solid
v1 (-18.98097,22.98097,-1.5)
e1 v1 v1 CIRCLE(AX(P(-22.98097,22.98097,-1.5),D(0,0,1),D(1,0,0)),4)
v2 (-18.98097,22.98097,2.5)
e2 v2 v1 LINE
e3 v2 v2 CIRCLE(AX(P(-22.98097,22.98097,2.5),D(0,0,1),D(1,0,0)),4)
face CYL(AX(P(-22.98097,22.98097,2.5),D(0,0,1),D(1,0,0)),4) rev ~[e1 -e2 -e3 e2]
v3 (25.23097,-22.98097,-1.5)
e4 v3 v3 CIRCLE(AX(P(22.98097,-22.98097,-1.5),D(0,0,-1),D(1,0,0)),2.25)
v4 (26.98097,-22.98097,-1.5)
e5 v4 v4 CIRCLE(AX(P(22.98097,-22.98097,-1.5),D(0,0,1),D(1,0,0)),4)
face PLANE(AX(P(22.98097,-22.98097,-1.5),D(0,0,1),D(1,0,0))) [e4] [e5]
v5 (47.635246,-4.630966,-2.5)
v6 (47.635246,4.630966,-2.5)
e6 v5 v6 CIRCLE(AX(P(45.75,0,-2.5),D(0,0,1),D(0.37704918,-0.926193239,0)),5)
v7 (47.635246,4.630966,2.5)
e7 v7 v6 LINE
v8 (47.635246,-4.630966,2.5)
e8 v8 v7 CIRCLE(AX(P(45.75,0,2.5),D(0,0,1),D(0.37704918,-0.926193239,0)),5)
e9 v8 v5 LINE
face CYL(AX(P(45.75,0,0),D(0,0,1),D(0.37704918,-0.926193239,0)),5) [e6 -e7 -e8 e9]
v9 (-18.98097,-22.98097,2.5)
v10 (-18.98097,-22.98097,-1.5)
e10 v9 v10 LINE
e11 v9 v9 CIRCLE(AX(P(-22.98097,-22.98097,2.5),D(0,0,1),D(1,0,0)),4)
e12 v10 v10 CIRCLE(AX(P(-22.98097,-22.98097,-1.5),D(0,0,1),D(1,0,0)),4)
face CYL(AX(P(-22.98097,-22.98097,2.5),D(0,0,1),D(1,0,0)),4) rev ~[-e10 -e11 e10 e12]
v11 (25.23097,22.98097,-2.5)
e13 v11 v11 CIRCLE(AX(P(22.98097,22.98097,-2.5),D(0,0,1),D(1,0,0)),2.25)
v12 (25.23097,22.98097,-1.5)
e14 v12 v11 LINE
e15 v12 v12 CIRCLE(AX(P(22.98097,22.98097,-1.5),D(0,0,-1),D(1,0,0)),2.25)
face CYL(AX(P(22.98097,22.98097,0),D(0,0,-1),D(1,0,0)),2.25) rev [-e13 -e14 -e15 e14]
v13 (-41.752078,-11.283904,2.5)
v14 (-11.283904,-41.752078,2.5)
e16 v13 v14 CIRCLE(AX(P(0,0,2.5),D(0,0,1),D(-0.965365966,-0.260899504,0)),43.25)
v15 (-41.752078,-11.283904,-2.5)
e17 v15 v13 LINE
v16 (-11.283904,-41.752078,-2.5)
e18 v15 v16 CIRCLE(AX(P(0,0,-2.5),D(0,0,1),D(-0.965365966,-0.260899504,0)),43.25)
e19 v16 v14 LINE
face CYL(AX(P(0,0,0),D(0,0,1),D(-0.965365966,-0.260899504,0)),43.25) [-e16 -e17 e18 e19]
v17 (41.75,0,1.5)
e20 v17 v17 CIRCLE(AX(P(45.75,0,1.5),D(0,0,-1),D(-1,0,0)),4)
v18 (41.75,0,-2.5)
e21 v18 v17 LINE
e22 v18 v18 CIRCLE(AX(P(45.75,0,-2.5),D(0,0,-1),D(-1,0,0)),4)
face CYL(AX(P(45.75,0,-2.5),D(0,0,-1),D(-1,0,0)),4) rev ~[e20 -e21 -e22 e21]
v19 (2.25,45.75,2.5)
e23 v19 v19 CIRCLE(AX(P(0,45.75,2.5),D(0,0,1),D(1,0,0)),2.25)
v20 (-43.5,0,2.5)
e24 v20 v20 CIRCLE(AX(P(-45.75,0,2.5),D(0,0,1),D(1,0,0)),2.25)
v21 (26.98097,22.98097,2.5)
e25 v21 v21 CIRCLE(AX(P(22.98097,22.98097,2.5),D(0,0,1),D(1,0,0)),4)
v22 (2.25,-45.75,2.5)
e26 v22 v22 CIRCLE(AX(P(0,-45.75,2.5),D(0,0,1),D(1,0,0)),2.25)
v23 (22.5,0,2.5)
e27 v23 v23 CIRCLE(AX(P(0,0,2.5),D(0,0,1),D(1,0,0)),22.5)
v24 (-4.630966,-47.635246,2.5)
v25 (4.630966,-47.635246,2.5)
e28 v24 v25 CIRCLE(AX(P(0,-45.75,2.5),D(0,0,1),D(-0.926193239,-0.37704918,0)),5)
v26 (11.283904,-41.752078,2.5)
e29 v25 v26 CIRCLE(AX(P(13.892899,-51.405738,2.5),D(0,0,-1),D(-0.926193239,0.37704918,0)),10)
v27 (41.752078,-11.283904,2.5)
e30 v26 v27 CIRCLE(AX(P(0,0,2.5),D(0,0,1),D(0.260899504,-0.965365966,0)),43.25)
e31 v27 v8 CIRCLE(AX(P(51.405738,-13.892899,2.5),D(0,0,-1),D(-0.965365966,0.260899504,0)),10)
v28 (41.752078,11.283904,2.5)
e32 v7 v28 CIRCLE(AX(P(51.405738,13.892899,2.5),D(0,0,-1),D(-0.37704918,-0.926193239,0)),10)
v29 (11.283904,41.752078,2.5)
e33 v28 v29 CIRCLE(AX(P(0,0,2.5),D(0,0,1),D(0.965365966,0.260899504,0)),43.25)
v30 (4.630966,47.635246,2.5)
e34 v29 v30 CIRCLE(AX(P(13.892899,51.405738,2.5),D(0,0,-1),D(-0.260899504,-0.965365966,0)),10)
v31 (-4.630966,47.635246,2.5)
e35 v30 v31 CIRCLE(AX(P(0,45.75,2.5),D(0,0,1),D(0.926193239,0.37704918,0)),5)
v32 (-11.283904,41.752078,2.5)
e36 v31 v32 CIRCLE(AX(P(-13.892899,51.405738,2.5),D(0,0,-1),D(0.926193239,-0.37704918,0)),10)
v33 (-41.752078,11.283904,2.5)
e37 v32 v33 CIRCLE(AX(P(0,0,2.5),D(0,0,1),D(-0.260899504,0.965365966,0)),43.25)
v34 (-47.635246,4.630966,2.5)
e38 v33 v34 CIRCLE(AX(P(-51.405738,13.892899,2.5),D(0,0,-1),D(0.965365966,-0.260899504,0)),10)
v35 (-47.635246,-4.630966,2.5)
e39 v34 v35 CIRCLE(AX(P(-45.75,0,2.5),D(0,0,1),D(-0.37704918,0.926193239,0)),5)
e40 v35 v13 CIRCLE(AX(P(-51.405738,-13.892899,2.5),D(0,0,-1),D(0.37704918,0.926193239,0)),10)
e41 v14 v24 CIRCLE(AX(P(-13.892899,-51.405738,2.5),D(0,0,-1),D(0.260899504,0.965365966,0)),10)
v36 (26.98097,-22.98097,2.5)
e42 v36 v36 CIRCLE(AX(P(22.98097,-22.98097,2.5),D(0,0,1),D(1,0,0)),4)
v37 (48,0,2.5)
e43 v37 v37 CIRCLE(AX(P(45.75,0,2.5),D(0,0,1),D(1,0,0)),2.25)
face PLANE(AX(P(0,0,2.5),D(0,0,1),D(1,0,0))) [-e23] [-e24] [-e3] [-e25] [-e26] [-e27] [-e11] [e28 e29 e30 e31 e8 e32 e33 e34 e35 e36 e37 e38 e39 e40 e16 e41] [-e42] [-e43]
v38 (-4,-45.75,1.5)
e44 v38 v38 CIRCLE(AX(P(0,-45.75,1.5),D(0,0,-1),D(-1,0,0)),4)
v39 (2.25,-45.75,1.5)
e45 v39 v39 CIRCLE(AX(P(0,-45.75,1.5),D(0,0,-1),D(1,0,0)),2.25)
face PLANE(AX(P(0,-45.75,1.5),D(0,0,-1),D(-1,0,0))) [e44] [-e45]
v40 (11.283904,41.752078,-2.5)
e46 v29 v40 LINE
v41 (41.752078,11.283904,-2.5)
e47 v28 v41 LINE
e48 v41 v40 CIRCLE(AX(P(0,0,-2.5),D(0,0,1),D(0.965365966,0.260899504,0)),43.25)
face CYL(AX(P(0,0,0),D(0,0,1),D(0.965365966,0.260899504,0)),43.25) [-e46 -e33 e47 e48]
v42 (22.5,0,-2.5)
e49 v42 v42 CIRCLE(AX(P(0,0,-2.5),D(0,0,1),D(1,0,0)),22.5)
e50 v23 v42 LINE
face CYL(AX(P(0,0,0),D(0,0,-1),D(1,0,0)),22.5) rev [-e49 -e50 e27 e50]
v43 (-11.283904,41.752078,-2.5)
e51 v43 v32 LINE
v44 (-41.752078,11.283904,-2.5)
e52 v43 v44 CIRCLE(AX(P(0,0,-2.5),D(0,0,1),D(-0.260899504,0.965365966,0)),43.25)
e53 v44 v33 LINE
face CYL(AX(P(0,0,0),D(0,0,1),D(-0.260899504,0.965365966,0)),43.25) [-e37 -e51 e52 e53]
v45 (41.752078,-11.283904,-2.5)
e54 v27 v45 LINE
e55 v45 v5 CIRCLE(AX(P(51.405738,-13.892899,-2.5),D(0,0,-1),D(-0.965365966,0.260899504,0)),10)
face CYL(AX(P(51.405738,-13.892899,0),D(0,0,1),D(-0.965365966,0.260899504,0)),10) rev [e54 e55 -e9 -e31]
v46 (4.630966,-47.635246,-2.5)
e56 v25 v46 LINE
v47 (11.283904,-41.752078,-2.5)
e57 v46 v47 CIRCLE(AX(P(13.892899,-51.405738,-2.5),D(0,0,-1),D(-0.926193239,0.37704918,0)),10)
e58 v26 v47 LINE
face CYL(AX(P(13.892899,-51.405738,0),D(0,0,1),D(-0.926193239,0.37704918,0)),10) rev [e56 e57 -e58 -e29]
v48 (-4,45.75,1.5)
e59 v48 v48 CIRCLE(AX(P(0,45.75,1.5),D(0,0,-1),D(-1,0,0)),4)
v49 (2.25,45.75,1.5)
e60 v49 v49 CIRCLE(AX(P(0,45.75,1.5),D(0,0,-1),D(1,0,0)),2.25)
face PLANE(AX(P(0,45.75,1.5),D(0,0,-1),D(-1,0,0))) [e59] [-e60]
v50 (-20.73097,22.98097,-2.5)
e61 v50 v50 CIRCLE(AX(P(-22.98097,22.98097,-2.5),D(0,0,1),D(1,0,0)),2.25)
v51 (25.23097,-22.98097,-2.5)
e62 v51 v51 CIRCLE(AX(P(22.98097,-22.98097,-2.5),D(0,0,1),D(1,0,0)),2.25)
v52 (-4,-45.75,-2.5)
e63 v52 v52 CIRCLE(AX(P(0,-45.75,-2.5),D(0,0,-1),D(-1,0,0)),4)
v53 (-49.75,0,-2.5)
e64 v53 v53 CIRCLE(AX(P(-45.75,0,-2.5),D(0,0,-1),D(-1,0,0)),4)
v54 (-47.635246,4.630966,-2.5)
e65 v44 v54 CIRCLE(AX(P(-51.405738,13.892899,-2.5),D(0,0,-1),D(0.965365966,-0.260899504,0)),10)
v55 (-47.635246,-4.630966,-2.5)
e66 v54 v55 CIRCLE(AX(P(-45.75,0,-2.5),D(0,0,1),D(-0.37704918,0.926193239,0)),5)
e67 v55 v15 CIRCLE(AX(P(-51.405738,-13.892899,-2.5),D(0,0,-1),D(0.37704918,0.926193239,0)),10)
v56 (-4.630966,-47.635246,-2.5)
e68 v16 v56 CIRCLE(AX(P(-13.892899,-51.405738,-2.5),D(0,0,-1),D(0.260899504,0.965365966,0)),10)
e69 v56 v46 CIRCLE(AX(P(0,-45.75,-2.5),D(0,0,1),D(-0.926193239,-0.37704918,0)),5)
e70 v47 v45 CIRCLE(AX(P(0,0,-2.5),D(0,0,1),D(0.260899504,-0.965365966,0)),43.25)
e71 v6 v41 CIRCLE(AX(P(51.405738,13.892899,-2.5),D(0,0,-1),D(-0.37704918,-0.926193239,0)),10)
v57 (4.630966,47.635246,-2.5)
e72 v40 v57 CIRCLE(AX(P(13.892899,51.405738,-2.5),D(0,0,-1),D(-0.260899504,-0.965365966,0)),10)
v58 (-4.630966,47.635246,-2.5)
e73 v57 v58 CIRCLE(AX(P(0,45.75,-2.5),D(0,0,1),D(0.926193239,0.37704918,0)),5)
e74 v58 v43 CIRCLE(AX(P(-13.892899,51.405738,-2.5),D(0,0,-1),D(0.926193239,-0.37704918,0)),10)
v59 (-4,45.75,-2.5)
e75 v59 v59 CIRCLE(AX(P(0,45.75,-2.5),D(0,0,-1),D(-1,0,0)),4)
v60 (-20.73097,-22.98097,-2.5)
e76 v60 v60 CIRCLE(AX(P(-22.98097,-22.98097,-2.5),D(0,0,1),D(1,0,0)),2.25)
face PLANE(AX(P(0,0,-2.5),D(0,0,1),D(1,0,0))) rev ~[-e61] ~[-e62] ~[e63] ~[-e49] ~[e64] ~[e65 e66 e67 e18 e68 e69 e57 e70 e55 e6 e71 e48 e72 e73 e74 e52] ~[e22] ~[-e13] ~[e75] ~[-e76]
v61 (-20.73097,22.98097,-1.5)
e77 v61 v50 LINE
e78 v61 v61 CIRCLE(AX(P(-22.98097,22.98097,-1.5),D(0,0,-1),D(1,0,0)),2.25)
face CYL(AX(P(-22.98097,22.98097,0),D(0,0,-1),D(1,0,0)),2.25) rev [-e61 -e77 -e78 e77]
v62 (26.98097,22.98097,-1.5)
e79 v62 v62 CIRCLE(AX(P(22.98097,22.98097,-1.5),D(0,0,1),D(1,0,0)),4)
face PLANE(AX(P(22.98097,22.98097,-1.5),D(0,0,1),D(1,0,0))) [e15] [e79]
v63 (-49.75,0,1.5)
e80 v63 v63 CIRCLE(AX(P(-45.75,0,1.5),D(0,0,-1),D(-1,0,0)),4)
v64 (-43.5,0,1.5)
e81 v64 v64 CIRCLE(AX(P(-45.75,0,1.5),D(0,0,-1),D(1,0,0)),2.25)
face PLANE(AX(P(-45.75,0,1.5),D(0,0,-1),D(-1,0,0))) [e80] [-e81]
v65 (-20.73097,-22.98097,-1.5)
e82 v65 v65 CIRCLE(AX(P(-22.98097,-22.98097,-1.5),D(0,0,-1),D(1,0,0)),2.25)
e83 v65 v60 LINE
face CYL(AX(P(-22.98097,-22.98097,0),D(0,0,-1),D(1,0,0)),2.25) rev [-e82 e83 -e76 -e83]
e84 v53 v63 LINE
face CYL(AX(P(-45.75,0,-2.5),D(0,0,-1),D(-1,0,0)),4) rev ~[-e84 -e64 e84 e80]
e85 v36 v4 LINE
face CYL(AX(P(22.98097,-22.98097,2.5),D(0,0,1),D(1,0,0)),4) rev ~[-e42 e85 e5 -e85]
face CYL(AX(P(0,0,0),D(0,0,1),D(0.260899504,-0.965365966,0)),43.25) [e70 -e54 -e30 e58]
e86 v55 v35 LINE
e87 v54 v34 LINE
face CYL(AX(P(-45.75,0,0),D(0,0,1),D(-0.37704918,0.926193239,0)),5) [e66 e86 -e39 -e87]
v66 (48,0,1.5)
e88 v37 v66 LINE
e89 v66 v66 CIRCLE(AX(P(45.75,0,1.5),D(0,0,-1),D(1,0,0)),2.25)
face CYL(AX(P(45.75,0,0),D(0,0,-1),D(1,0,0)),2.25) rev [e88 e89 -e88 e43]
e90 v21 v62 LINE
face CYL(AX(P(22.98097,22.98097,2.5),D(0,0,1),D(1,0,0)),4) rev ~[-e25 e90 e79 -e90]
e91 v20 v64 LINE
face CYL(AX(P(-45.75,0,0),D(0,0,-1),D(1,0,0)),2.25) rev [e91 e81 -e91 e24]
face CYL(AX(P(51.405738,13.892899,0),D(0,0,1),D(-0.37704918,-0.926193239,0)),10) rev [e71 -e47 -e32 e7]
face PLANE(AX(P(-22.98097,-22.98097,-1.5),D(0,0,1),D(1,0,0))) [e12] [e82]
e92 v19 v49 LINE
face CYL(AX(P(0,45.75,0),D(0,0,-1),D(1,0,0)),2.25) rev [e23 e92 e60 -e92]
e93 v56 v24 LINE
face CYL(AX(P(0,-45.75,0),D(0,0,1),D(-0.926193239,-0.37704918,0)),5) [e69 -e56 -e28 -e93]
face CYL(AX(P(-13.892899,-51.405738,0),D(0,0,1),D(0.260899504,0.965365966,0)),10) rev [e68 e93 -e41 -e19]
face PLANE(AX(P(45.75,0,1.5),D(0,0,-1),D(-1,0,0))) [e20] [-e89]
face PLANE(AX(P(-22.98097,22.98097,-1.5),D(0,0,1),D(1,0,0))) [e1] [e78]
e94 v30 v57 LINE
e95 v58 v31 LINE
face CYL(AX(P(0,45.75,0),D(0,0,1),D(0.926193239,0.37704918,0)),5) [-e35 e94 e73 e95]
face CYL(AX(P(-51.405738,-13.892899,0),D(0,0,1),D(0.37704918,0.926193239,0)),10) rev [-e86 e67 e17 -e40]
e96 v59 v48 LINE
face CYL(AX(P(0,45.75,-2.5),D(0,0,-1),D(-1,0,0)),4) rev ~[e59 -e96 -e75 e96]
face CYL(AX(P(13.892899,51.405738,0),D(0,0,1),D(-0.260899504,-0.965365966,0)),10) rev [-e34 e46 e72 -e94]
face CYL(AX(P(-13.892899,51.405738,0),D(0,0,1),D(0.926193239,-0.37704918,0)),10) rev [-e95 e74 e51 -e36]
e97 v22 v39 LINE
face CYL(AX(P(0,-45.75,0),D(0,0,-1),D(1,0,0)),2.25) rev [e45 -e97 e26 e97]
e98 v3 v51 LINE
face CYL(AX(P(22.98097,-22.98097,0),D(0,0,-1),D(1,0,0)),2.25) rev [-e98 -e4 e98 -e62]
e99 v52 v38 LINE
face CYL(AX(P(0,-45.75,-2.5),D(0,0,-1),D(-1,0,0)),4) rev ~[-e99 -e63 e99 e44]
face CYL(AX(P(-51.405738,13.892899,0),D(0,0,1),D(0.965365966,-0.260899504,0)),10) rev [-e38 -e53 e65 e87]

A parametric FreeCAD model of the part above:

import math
import FreeCAD as App
import Part
import Sketcher

V = App.Vector
Q = App.Units.Quantity

doc = App.newDocument("Part")
params = doc.addObject("Spreadsheet::Sheet", "Params")
for row, (alias, value) in enumerate([
    ("sketch1_diameter", "45 mm"),
    ("sketch1_radius", "5 mm"),
    ("sketch1_radius2", "10 mm"),
    ("sketch1_diameter2", "4.5 mm"),
    ("sketch1_radius3", "43.25 mm"),
    ("pad1_length", "5 mm"),
    ("sketch2_diameter", "8 mm"),
    ("pocket1_length", "4 mm"),
    ("sketch3_diameter", "8 mm"),
    ("pocket2_length", "4 mm"),
], start=1):
    params.set(f"A{row}", alias)
    params.set(f"B{row}", "=" + value)
    params.setAlias(f"B{row}", alias)

body = doc.addObject("PartDesign::Body", "Body")

sketch1 = doc.addObject("Sketcher::SketchObject", "Sketch")
body.addObject(sketch1)
sketch1.AttachmentSupport = (doc.XY_Plane, [""])
sketch1.MapMode = "FlatFace"
sketch1.addGeometry(Part.ArcOfCircle(Part.Circle(V(0, 45.8, 0), V(0, 0, 1), 5), math.radians(22), math.radians(158)), False)
sketch1.addGeometry(Part.ArcOfCircle(Part.Circle(V(-13.9, 51.4, 0), V(0, 0, 1), 10), math.radians(-75), math.radians(-22)), False)
sketch1.addGeometry(Part.ArcOfCircle(Part.Circle(V(0, 0, 0), V(0, 0, 1), 43.3), math.radians(105), math.radians(165)), False)
sketch1.addGeometry(Part.ArcOfCircle(Part.Circle(V(-51.4, 13.9, 0), V(0, 0, 1), 10), math.radians(-68), math.radians(-15)), False)
sketch1.addGeometry(Part.ArcOfCircle(Part.Circle(V(-45.8, 0, 0), V(0, 0, 1), 5), math.radians(112), math.radians(248)), False)
sketch1.addGeometry(Part.ArcOfCircle(Part.Circle(V(-51.4, -13.9, 0), V(0, 0, 1), 10), math.radians(15), math.radians(68)), False)
sketch1.addGeometry(Part.ArcOfCircle(Part.Circle(V(0, 0, 0), V(0, 0, 1), 43.3), math.radians(-165), math.radians(-105)), False)
sketch1.addGeometry(Part.ArcOfCircle(Part.Circle(V(-13.9, -51.4, 0), V(0, 0, 1), 10), math.radians(22), math.radians(75)), False)
sketch1.addGeometry(Part.ArcOfCircle(Part.Circle(V(0, -45.8, 0), V(0, 0, 1), 5), math.radians(-158), math.radians(-22)), False)
sketch1.addGeometry(Part.ArcOfCircle(Part.Circle(V(13.9, -51.4, 0), V(0, 0, 1), 10), math.radians(105), math.radians(158)), False)
sketch1.addGeometry(Part.ArcOfCircle(Part.Circle(V(0, 0, 0), V(0, 0, 1), 43.3), math.radians(-75), math.radians(-15)), False)
sketch1.addGeometry(Part.ArcOfCircle(Part.Circle(V(51.4, -13.9, 0), V(0, 0, 1), 10), math.radians(112), math.radians(165)), False)
sketch1.addGeometry(Part.ArcOfCircle(Part.Circle(V(45.8, 0, 0), V(0, 0, 1), 5), math.radians(-68), math.radians(68)), False)
sketch1.addGeometry(Part.ArcOfCircle(Part.Circle(V(51.4, 13.9, 0), V(0, 0, 1), 10), math.radians(-165), math.radians(-112)), False)
sketch1.addGeometry(Part.ArcOfCircle(Part.Circle(V(0, 0, 0), V(0, 0, 1), 43.3), math.radians(15), math.radians(75)), False)
sketch1.addGeometry(Part.ArcOfCircle(Part.Circle(V(13.9, 51.4, 0), V(0, 0, 1), 10), math.radians(-158), math.radians(-105)), False)
sketch1.addGeometry(Part.Circle(V(-23, -23, 0), V(0, 0, 1), 2.2), False)
sketch1.addGeometry(Part.Circle(V(0, -45.8, 0), V(0, 0, 1), 2.2), False)
sketch1.addGeometry(Part.Circle(V(23, -23, 0), V(0, 0, 1), 2.2), False)
sketch1.addGeometry(Part.Circle(V(-45.8, 0, 0), V(0, 0, 1), 2.2), False)
sketch1.addGeometry(Part.Circle(V(-23, 23, 0), V(0, 0, 1), 2.2), False)
sketch1.addGeometry(Part.Circle(V(0, 0, 0), V(0, 0, 1), 22.5), False)
sketch1.addGeometry(Part.Circle(V(23, 23, 0), V(0, 0, 1), 2.2), False)
sketch1.addGeometry(Part.Circle(V(45.8, 0, 0), V(0, 0, 1), 2.2), False)
sketch1.addGeometry(Part.Circle(V(0, 45.8, 0), V(0, 0, 1), 2.2), False)
sketch1.addConstraint(Sketcher.Constraint("Tangent", 0, 2, 1, 2))
sketch1.addConstraint(Sketcher.Constraint("Tangent", 1, 1, 2, 1))
sketch1.addConstraint(Sketcher.Constraint("Tangent", 2, 2, 3, 2))
sketch1.addConstraint(Sketcher.Constraint("Tangent", 3, 1, 4, 1))
sketch1.addConstraint(Sketcher.Constraint("Tangent", 4, 2, 5, 2))
sketch1.addConstraint(Sketcher.Constraint("Tangent", 5, 1, 6, 1))
sketch1.addConstraint(Sketcher.Constraint("Tangent", 6, 2, 7, 2))
sketch1.addConstraint(Sketcher.Constraint("Tangent", 7, 1, 8, 1))
sketch1.addConstraint(Sketcher.Constraint("Tangent", 8, 2, 9, 2))
sketch1.addConstraint(Sketcher.Constraint("Tangent", 9, 1, 10, 1))
sketch1.addConstraint(Sketcher.Constraint("Tangent", 10, 2, 11, 2))
sketch1.addConstraint(Sketcher.Constraint("Tangent", 11, 1, 12, 1))
sketch1.addConstraint(Sketcher.Constraint("Tangent", 12, 2, 13, 2))
sketch1.addConstraint(Sketcher.Constraint("Tangent", 13, 1, 14, 1))
sketch1.addConstraint(Sketcher.Constraint("Tangent", 14, 2, 15, 2))
sketch1.addConstraint(Sketcher.Constraint("Tangent", 15, 1, 0, 1))
sketch1.addConstraint(Sketcher.Constraint("Coincident", 2, 3, -1, 1))
sketch1.addConstraint(Sketcher.Constraint("Coincident", 6, 3, -1, 1))
sketch1.addConstraint(Sketcher.Constraint("Coincident", 10, 3, -1, 1))
sketch1.addConstraint(Sketcher.Constraint("Coincident", 14, 3, -1, 1))
sketch1.addConstraint(Sketcher.Constraint("Coincident", 21, 3, -1, 1))
sketch1.addConstraint(Sketcher.Constraint("Coincident", 17, 3, 8, 3))
sketch1.addConstraint(Sketcher.Constraint("Coincident", 19, 3, 4, 3))
sketch1.addConstraint(Sketcher.Constraint("Coincident", 23, 3, 12, 3))
sketch1.addConstraint(Sketcher.Constraint("Coincident", 24, 3, 0, 3))
sketch1.addConstraint(Sketcher.Constraint("Equal", 1, 3))
sketch1.addConstraint(Sketcher.Constraint("Equal", 0, 4))
sketch1.addConstraint(Sketcher.Constraint("Equal", 3, 5))
sketch1.addConstraint(Sketcher.Constraint("Equal", 2, 6))
sketch1.addConstraint(Sketcher.Constraint("Equal", 5, 7))
sketch1.addConstraint(Sketcher.Constraint("Equal", 4, 8))
sketch1.addConstraint(Sketcher.Constraint("Equal", 7, 9))
sketch1.addConstraint(Sketcher.Constraint("Equal", 6, 10))
sketch1.addConstraint(Sketcher.Constraint("Equal", 9, 11))
sketch1.addConstraint(Sketcher.Constraint("Equal", 8, 12))
sketch1.addConstraint(Sketcher.Constraint("Equal", 11, 13))
sketch1.addConstraint(Sketcher.Constraint("Equal", 10, 14))
sketch1.addConstraint(Sketcher.Constraint("Equal", 13, 15))
sketch1.addConstraint(Sketcher.Constraint("Equal", 16, 17))
sketch1.addConstraint(Sketcher.Constraint("Equal", 17, 18))
sketch1.addConstraint(Sketcher.Constraint("Equal", 18, 19))
sketch1.addConstraint(Sketcher.Constraint("Equal", 19, 20))
sketch1.addConstraint(Sketcher.Constraint("Equal", 20, 22))
sketch1.addConstraint(Sketcher.Constraint("Equal", 22, 23))
sketch1.addConstraint(Sketcher.Constraint("Equal", 23, 24))
sketch1.addConstraint(Sketcher.Constraint("Symmetric", 0, 3, 8, 3, -1, 1))
sketch1.addConstraint(Sketcher.Constraint("Symmetric", 4, 3, 12, 3, -1, 1))
sketch1.addConstraint(Sketcher.Constraint("Symmetric", 18, 3, 20, 3, -1, 1))
sketch1.addConstraint(Sketcher.Constraint("Symmetric", 16, 3, 22, 3, -1, 1))
sketch1.addConstraint(Sketcher.Constraint("Symmetric", 16, 3, 18, 3, -2))
sketch1.addConstraint(Sketcher.Constraint("PointOnObject", 0, 3, -2))
sketch1.addConstraint(Sketcher.Constraint("PointOnObject", 4, 3, -1))
sketch1.addConstraint(Sketcher.Constraint("Diameter", 21, Q("45 mm")))
sketch1.addConstraint(Sketcher.Constraint("Radius", 0, Q("5 mm")))
sketch1.addConstraint(Sketcher.Constraint("Radius", 1, Q("10 mm")))
sketch1.addConstraint(Sketcher.Constraint("Diameter", 16, Q("4.5 mm")))
sketch1.addConstraint(Sketcher.Constraint("Radius", 2, Q("43.25 mm")))
sketch1.addConstraint(Sketcher.Constraint("DistanceY", -1, 1, 0, 3, Q("45.75 mm")))
sketch1.addConstraint(Sketcher.Constraint("DistanceX", 4, 3, -1, 1, Q("45.75 mm")))
sketch1.addConstraint(Sketcher.Constraint("DistanceX", 16, 3, -1, 1, Q("22.98097 mm")))
sketch1.addConstraint(Sketcher.Constraint("DistanceY", 16, 3, -1, 1, Q("22.98097 mm")))
sketch1.setExpression("Constraints[52]", "Params.sketch1_diameter")
sketch1.setExpression("Constraints[53]", "Params.sketch1_radius")
sketch1.setExpression("Constraints[54]", "Params.sketch1_radius2")
sketch1.setExpression("Constraints[55]", "Params.sketch1_diameter2")
sketch1.setExpression("Constraints[56]", "Params.sketch1_radius3")
pad1 = doc.addObject("PartDesign::Pad", "Pad")
body.addObject(pad1)
pad1.Profile = sketch1
pad1.setExpression("Length", "Params.pad1_length")
pad1.Midplane = True

sketch2 = doc.addObject("Sketcher::SketchObject", "Sketch001")
body.addObject(sketch2)
sketch2.AttachmentSupport = (doc.XY_Plane, [""])
sketch2.MapMode = "FlatFace"
sketch2.AttachmentOffset = App.Placement(V(0, 0, 2.5), App.Rotation())
sketch2.addGeometry(Part.Circle(V(-23, -23, 0), V(0, 0, 1), 4), False)
sketch2.addGeometry(Part.Circle(V(-23, 23, 0), V(0, 0, 1), 4), False)
sketch2.addGeometry(Part.Circle(V(23, 23, 0), V(0, 0, 1), 4), False)
sketch2.addGeometry(Part.Circle(V(23, -23, 0), V(0, 0, 1), 4), False)
sketch2.addConstraint(Sketcher.Constraint("Equal", 0, 1))
sketch2.addConstraint(Sketcher.Constraint("Equal", 1, 2))
sketch2.addConstraint(Sketcher.Constraint("Equal", 2, 3))
sketch2.addConstraint(Sketcher.Constraint("Symmetric", 0, 3, 2, 3, -1, 1))
sketch2.addConstraint(Sketcher.Constraint("Symmetric", 1, 3, 3, 3, -1, 1))
sketch2.addConstraint(Sketcher.Constraint("Symmetric", 1, 3, 2, 3, -2))
sketch2.addConstraint(Sketcher.Constraint("Diameter", 0, Q("8 mm")))
sketch2.addConstraint(Sketcher.Constraint("DistanceX", 0, 3, -1, 1, Q("22.98097 mm")))
sketch2.addConstraint(Sketcher.Constraint("DistanceY", 0, 3, -1, 1, Q("22.98097 mm")))
sketch2.setExpression("Constraints[6]", "Params.sketch2_diameter")
pocket1 = doc.addObject("PartDesign::Pocket", "Pocket")
body.addObject(pocket1)
pocket1.Profile = sketch2
pocket1.setExpression("Length", "Params.pocket1_length")

sketch3 = doc.addObject("Sketcher::SketchObject", "Sketch002")
body.addObject(sketch3)
sketch3.AttachmentSupport = (doc.XY_Plane, [""])
sketch3.MapMode = "FlatFace"
sketch3.AttachmentOffset = App.Placement(V(0, 0, -2.5), App.Rotation())
sketch3.addGeometry(Part.Circle(V(0, 45.8, 0), V(0, 0, 1), 4), False)
sketch3.addGeometry(Part.Circle(V(-45.8, 0, 0), V(0, 0, 1), 4), False)
sketch3.addGeometry(Part.Circle(V(0, -45.8, 0), V(0, 0, 1), 4), False)
sketch3.addGeometry(Part.Circle(V(45.8, 0, 0), V(0, 0, 1), 4), False)
sketch3.addConstraint(Sketcher.Constraint("Equal", 0, 1))
sketch3.addConstraint(Sketcher.Constraint("Equal", 1, 2))
sketch3.addConstraint(Sketcher.Constraint("Equal", 2, 3))
sketch3.addConstraint(Sketcher.Constraint("Symmetric", 0, 3, 2, 3, -1, 1))
sketch3.addConstraint(Sketcher.Constraint("Symmetric", 1, 3, 3, 3, -1, 1))
sketch3.addConstraint(Sketcher.Constraint("PointOnObject", 0, 3, -2))
sketch3.addConstraint(Sketcher.Constraint("PointOnObject", 1, 3, -1))
sketch3.addConstraint(Sketcher.Constraint("Diameter", 0, Q("8 mm")))
sketch3.addConstraint(Sketcher.Constraint("DistanceY", 2, 3, 0, 3, Q("91.5 mm")))
sketch3.addConstraint(Sketcher.Constraint("DistanceX", 1, 3, 3, 3, Q("91.5 mm")))
sketch3.setExpression("Constraints[7]", "Params.sketch3_diameter")
pocket2 = doc.addObject("PartDesign::Pocket", "Pocket001")
body.addObject(pocket2)
pocket2.Profile = sketch3
pocket2.setExpression("Length", "Params.pocket2_length")
pocket2.Reversed = True

doc.recompute()
